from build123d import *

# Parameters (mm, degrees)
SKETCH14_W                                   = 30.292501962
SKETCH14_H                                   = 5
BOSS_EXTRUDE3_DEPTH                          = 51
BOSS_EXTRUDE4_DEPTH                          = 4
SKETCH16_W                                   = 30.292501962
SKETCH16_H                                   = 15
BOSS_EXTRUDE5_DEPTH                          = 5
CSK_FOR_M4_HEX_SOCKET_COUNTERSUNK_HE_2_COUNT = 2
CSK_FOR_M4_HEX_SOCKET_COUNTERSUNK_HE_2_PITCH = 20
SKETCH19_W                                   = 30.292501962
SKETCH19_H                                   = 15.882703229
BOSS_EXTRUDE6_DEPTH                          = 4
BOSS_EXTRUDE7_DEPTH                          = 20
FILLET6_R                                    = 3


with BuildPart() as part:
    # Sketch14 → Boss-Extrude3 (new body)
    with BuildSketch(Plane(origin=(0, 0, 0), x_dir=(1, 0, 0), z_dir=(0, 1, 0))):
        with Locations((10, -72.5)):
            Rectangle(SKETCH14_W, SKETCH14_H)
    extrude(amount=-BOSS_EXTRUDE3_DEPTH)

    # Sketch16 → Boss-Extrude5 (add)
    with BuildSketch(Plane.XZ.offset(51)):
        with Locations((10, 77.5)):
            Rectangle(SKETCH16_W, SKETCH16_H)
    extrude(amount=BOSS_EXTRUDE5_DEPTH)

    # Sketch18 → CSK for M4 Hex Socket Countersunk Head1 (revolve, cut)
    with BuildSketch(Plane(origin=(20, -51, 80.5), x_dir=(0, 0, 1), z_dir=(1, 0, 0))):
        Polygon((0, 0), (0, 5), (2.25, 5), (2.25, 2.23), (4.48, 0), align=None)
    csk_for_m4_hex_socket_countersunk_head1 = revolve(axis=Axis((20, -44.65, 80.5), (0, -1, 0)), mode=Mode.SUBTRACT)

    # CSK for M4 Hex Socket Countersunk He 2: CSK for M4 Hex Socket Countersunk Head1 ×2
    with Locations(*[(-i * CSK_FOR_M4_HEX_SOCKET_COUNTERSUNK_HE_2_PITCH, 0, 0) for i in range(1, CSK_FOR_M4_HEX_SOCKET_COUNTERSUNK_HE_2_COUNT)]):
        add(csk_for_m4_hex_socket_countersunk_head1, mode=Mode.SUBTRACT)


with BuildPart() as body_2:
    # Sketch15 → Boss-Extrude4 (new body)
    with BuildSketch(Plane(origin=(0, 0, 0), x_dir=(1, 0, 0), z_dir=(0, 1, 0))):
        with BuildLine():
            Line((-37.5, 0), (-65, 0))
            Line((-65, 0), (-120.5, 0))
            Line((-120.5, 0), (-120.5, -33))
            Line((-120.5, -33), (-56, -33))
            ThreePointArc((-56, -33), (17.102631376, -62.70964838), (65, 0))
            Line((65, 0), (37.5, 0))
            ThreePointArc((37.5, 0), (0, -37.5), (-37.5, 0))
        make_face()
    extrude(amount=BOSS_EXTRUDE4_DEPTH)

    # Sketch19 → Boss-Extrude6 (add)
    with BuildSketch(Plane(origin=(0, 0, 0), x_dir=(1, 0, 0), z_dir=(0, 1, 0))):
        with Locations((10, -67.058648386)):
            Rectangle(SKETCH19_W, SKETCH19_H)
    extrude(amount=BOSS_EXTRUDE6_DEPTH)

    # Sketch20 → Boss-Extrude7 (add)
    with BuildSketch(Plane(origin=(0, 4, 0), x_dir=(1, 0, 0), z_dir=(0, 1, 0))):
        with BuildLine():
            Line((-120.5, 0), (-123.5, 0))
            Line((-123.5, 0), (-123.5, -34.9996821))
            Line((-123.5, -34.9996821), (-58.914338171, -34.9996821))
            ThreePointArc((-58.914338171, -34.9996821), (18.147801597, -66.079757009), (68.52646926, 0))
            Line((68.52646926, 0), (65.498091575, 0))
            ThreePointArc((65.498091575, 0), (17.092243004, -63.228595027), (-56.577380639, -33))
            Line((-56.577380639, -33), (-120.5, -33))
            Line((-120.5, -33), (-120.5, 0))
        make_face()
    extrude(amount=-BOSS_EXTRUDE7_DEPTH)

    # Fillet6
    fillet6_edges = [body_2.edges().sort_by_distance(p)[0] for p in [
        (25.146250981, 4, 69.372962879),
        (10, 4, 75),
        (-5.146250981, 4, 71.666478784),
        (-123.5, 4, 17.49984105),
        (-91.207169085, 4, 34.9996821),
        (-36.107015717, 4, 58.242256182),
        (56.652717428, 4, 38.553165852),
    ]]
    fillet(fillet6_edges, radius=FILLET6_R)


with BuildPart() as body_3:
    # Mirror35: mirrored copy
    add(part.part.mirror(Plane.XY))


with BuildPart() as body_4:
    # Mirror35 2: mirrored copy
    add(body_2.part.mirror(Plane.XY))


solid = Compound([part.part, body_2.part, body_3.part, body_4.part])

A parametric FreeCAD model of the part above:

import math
import FreeCAD as App
import Part
import Sketcher

V = App.Vector
Q = App.Units.Quantity


def edges_at(feature, points):
    """Names of the edges that pass closest to the given points."""
    edges = feature.Shape.Edges
    near = lambda p: min(range(len(edges)), key=lambda i: edges[i].distToShape(Part.Vertex(*p))[0])
    return sorted({f"Edge{near(p) + 1}" for p in points})

doc = App.newDocument("Part")
params = doc.addObject("Spreadsheet::Sheet", "Params")
for row, (alias, value) in enumerate([
    ("sketch1_height", "5 mm"),
    ("pad1_length", "51 mm"),
    ("sketch2_height", "15 mm"),
    ("pad2_length", "5 mm"),
    ("sketch3_width", "5 mm"),
    ("sketch3_width2", "2.77 mm"),
    ("sketch3_height", "4.48 mm"),
    ("groove_angle", "360 deg"),
    ("linearpattern_pitch", "20 mm"),
    ("sketch4_radius", "65 mm"),
    ("sketch4_radius2", "37.5 mm"),
    ("sketch4_width", "83 mm"),
    ("sketch4_height", "33 mm"),
    ("pad3_length", "4 mm"),
    ("pad4_length", "4 mm"),
    ("sketch6_width", "3 mm"),
    ("sketch6_height", "33 mm"),
    ("pad5_length", "20 mm"),
    ("fillet_radius", "3 mm"),
], start=1):
    params.set(f"A{row}", alias)
    params.set(f"B{row}", "=" + value)
    params.setAlias(f"B{row}", alias)

body = doc.addObject("PartDesign::Body", "Body")

sketch1 = doc.addObject("Sketcher::SketchObject", "Sketch")
body.addObject(sketch1)
sketch1.AttachmentSupport = (doc.XZ_Plane, [""])
sketch1.MapMode = "FlatFace"
sketch1.addGeometry([
    Part.LineSegment(V(-5, 70, 0), V(-5, 75, 0)),
    Part.LineSegment(V(-5, 75, 0), V(25, 75, 0)),
    Part.LineSegment(V(25, 75, 0), V(25, 70, 0)),
    Part.LineSegment(V(25, 70, 0), V(-5, 70, 0)),
], False)
sketch1.addConstraint([
    Sketcher.Constraint("Coincident", 0, 2, 1, 1),
    Sketcher.Constraint("Coincident", 1, 2, 2, 1),
    Sketcher.Constraint("Coincident", 2, 2, 3, 1),
    Sketcher.Constraint("Coincident", 3, 2, 0, 1),
    Sketcher.Constraint("Vertical", 0),
    Sketcher.Constraint("Horizontal", 1),
    Sketcher.Constraint("Vertical", 2),
    Sketcher.Constraint("Horizontal", 3),
    Sketcher.Constraint("DistanceY", 0, 1, 0, 2, Q("5 mm")),
    Sketcher.Constraint("DistanceY", -1, 1, 0, 2, Q("75 mm")),
    Sketcher.Constraint("DistanceX", 1, 1, 1, 2, Q("30.292502 mm")),
    Sketcher.Constraint("DistanceX", 0, 2, -1, 1, Q("5.146251 mm")),
])
sketch1.setExpression("Constraints[8]", "Params.sketch1_height")
pad1 = doc.addObject("PartDesign::Pad", "Pad")
body.addObject(pad1)
pad1.Profile = sketch1
pad1.setExpression("Length", "Params.pad1_length")

sketch2 = doc.addObject("Sketcher::SketchObject", "Sketch001")
body.addObject(sketch2)
sketch2.AttachmentSupport = (doc.XZ_Plane, [""])
sketch2.MapMode = "FlatFace"
sketch2.AttachmentOffset = App.Placement(V(0, 0, 51), App.Rotation())
sketch2.addGeometry([
    Part.LineSegment(V(-5, 85, 0), V(-5, 70, 0)),
    Part.LineSegment(V(-5, 70, 0), V(25, 70, 0)),
    Part.LineSegment(V(25, 70, 0), V(25, 85, 0)),
    Part.LineSegment(V(25, 85, 0), V(-5, 85, 0)),
], False)
sketch2.addConstraint([
    Sketcher.Constraint("Coincident", 0, 2, 1, 1),
    Sketcher.Constraint("Coincident", 1, 2, 2, 1),
    Sketcher.Constraint("Coincident", 2, 2, 3, 1),
    Sketcher.Constraint("Coincident", 3, 2, 0, 1),
    Sketcher.Constraint("Vertical", 0),
    Sketcher.Constraint("Horizontal", 1),
    Sketcher.Constraint("Vertical", 2),
    Sketcher.Constraint("Horizontal", 3),
    Sketcher.Constraint("DistanceY", 0, 2, 0, 1, Q("15 mm")),
    Sketcher.Constraint("DistanceY", -1, 1, 0, 2, Q("70 mm")),
    Sketcher.Constraint("DistanceX", 1, 1, 1, 2, Q("30.292502 mm")),
    Sketcher.Constraint("DistanceX", 0, 2, -1, 1, Q("5.146251 mm")),
])
sketch2.setExpression("Constraints[8]", "Params.sketch2_height")
pad2 = doc.addObject("PartDesign::Pad", "Pad001")
body.addObject(pad2)
pad2.Profile = sketch2
pad2.setExpression("Length", "Params.pad2_length")

sketch3 = doc.addObject("Sketcher::SketchObject", "Sketch002")
body.addObject(sketch3)
sketch3.AttachmentSupport = (doc.YZ_Plane, [""])
sketch3.MapMode = "FlatFace"
sketch3.AttachmentOffset = App.Placement(V(0, 0, 20), App.Rotation())
sketch3.addGeometry([
    Part.LineSegment(V(-56, 80.5, 0), V(-51, 80.5, 0)),
    Part.LineSegment(V(-51, 80.5, 0), V(-51, 85, 0)),
    Part.LineSegment(V(-51, 85, 0), V(-53.2, 82.8, 0)),
    Part.LineSegment(V(-53.2, 82.8, 0), V(-56, 82.8, 0)),
    Part.LineSegment(V(-56, 82.8, 0), V(-56, 80.5, 0)),
], False)
sketch3.addGeometry(Part.LineSegment(V(-51, 80.5, 0), V(-56, 80.5, 0)), True)
sketch3.addConstraint([
    Sketcher.Constraint("Coincident", 0, 2, 1, 1),
    Sketcher.Constraint("Coincident", 1, 2, 2, 1),
    Sketcher.Constraint("Coincident", 2, 2, 3, 1),
    Sketcher.Constraint("Coincident", 3, 2, 4, 1),
    Sketcher.Constraint("Coincident", 4, 2, 0, 1),
    Sketcher.Constraint("Horizontal", 0),
    Sketcher.Constraint("Vertical", 1),
    Sketcher.Constraint("Horizontal", 3),
    Sketcher.Constraint("Vertical", 4),
    Sketcher.Constraint("Horizontal", 5),
    Sketcher.Constraint("Coincident", 5, 1, 0, 2),
    Sketcher.Constraint("Vertical", 3, 2, 5, 2),
    Sketcher.Constraint("DistanceX", 0, 1, 0, 2, Q("5 mm")),
    Sketcher.Constraint("Angle", 2, Q("-135 deg")),
    Sketcher.Constraint("DistanceX", 0, 2, -1, 1, Q("51 mm")),
    Sketcher.Constraint("DistanceX", 3, 2, 3, 1, Q("2.77 mm")),
    Sketcher.Constraint("DistanceY", 1, 1, 1, 2, Q("4.48 mm")),
    Sketcher.Constraint("DistanceY", -1, 1, 0, 2, Q("80.5 mm")),
])
sketch3.setExpression("Constraints[12]", "Params.sketch3_width")
sketch3.setExpression("Constraints[15]", "Params.sketch3_width2")
sketch3.setExpression("Constraints[16]", "Params.sketch3_height")
groove = doc.addObject("PartDesign::Groove", "Groove")
body.addObject(groove)
groove.Profile = sketch3
groove.ReferenceAxis = (sketch3, ["Axis0"])
groove.setExpression("Angle", "Params.groove_angle")
doc.recompute()

linearpattern = doc.addObject("PartDesign::LinearPattern", "LinearPattern")
body.addObject(linearpattern)
linearpattern.Originals = [groove]
linearpattern.Direction = (doc.X_Axis, [""])
linearpattern.Mode = "offset"
linearpattern.setExpression("Offset", "Params.linearpattern_pitch")
linearpattern.Occurrences = 2
linearpattern.Reversed = True
body.Tip = linearpattern
body2 = doc.addObject("PartDesign::Body", "Body001")

sketch4 = doc.addObject("Sketcher::SketchObject", "Sketch003")
body2.addObject(sketch4)
sketch4.AttachmentSupport = (doc.getObject("XZ_Plane001"), [""])
sketch4.MapMode = "FlatFace"
sketch4.addGeometry([
    Part.LineSegment(V(-38, 0, 0), V(-120, 0, 0)),
    Part.LineSegment(V(-120, 0, 0), V(-120, 33, 0)),
    Part.LineSegment(V(-120, 33, 0), V(-56, 33, 0)),
    Part.ArcOfCircle(Part.Circle(V(0, 0, 0), V(0, 0, 1), 65), math.radians(0), math.radians(149)),
    Part.LineSegment(V(65, 0, 0), V(38, 0, 0)),
    Part.ArcOfCircle(Part.Circle(V(0, 0, 0), V(0, 0, 1), 38), math.radians(0), math.radians(180)),
], False)
sketch4.addConstraint([
    Sketcher.Constraint("Coincident", 0, 2, 1, 1),
    Sketcher.Constraint("Coincident", 1, 2, 2, 1),
    Sketcher.Constraint("Coincident", 2, 2, 3, 2),
    Sketcher.Constraint("Coincident", 3, 1, 4, 1),
    Sketcher.Constraint("Coincident", 4, 2, 5, 1),
    Sketcher.Constraint("Coincident", 5, 2, 0, 1),
    Sketcher.Constraint("Horizontal", 0),
    Sketcher.Constraint("Vertical", 1),
    Sketcher.Constraint("Horizontal", 2),
    Sketcher.Constraint("Horizontal", 4),
    Sketcher.Constraint("Coincident", 3, 3, -1, 1),
    Sketcher.Constraint("Coincident", 5, 3, -1, 1),
    Sketcher.Constraint("PointOnObject", 0, 2, -1),
    Sketcher.Constraint("PointOnObject", 3, 1, -1),
    Sketcher.Constraint("Radius", 3, Q("65 mm")),
    Sketcher.Constraint("Radius", 5, Q("37.5 mm")),
    Sketcher.Constraint("DistanceX", 0, 2, 0, 1, Q("83 mm")),
    Sketcher.Constraint("DistanceY", 1, 1, 1, 2, Q("33 mm")),
])
sketch4.setExpression("Constraints[14]", "Params.sketch4_radius")
sketch4.setExpression("Constraints[15]", "Params.sketch4_radius2")
sketch4.setExpression("Constraints[16]", "Params.sketch4_width")
sketch4.setExpression("Constraints[17]", "Params.sketch4_height")
pad3 = doc.addObject("PartDesign::Pad", "Pad002")
body2.addObject(pad3)
pad3.Profile = sketch4
pad3.setExpression("Length", "Params.pad3_length")
pad3.Reversed = True

sketch5 = doc.addObject("Sketcher::SketchObject", "Sketch004")
body2.addObject(sketch5)
sketch5.AttachmentSupport = (doc.getObject("XZ_Plane001"), [""])
sketch5.MapMode = "FlatFace"
sketch5.addGeometry([
    Part.LineSegment(V(-5, 59, 0), V(-5, 75, 0)),
    Part.LineSegment(V(-5, 75, 0), V(25, 75, 0)),
    Part.LineSegment(V(25, 75, 0), V(25, 59, 0)),
    Part.LineSegment(V(25, 59, 0), V(-5, 59, 0)),
], False)
sketch5.addConstraint([
    Sketcher.Constraint("Coincident", 0, 2, 1, 1),
    Sketcher.Constraint("Coincident", 1, 2, 2, 1),
    Sketcher.Constraint("Coincident", 2, 2, 3, 1),
    Sketcher.Constraint("Coincident", 3, 2, 0, 1),
    Sketcher.Constraint("Vertical", 0),
    Sketcher.Constraint("Horizontal", 1),
    Sketcher.Constraint("Vertical", 2),
    Sketcher.Constraint("Horizontal", 3),
    Sketcher.Constraint("DistanceY", -1, 1, 0, 2, Q("75 mm")),
    Sketcher.Constraint("DistanceX", 1, 1, 1, 2, Q("30.292502 mm")),
    Sketcher.Constraint("DistanceY", 0, 1, 0, 2, Q("15.882703 mm")),
    Sketcher.Constraint("DistanceX", 0, 2, -1, 1, Q("5.146251 mm")),
])
pad4 = doc.addObject("PartDesign::Pad", "Pad003")
body2.addObject(pad4)
pad4.Profile = sketch5
pad4.setExpression("Length", "Params.pad4_length")
pad4.Reversed = True

sketch6 = doc.addObject("Sketcher::SketchObject", "Sketch005")
body2.addObject(sketch6)
sketch6.AttachmentSupport = (doc.getObject("XZ_Plane001"), [""])
sketch6.MapMode = "FlatFace"
sketch6.AttachmentOffset = App.Placement(V(0, 0, -4), App.Rotation())
sketch6.addGeometry([
    Part.LineSegment(V(-120.5, 0, 0), V(-123.5, 0, 0)),
    Part.LineSegment(V(-123.5, 0, 0), V(-123.5, 35, 0)),
    Part.LineSegment(V(-123.5, 35, 0), V(-58.9, 35, 0)),
    Part.ArcOfCircle(Part.Circle(V(0, 0, 0), V(0, 0, 1), 68.5), math.radians(0), math.radians(149)),
    Part.LineSegment(V(68.5, 0, 0), V(65.5, 0, 0)),
    Part.ArcOfCircle(Part.Circle(V(0, 0, 0), V(0, 0, 1), 65.5), math.radians(0), math.radians(150)),
    Part.LineSegment(V(-56.6, 33, 0), V(-120.5, 33, 0)),
    Part.LineSegment(V(-120.5, 33, 0), V(-120.5, 0, 0)),
], False)
sketch6.addConstraint([
    Sketcher.Constraint("Coincident", 0, 2, 1, 1),
    Sketcher.Constraint("Coincident", 1, 2, 2, 1),
    Sketcher.Constraint("Coincident", 2, 2, 3, 2),
    Sketcher.Constraint("Coincident", 3, 1, 4, 1),
    Sketcher.Constraint("Coincident", 4, 2, 5, 1),
    Sketcher.Constraint("Coincident", 5, 2, 6, 1),
    Sketcher.Constraint("Coincident", 6, 2, 7, 1),
    Sketcher.Constraint("Coincident", 7, 2, 0, 1),
    Sketcher.Constraint("Horizontal", 0),
    Sketcher.Constraint("Vertical", 1),
    Sketcher.Constraint("Horizontal", 2),
    Sketcher.Constraint("Horizontal", 4),
    Sketcher.Constraint("Horizontal", 6),
    Sketcher.Constraint("Vertical", 7),
    Sketcher.Constraint("Coincident", 3, 3, -1, 1),
    Sketcher.Constraint("Coincident", 5, 3, -1, 1),
    Sketcher.Constraint("PointOnObject", 0, 2, -1),
    Sketcher.Constraint("PointOnObject", 3, 1, -1),
    Sketcher.Constraint("DistanceX", 0, 2, 0, 1, Q("3 mm")),
    Sketcher.Constraint("DistanceY", 7, 2, 7, 1, Q("33 mm")),
    Sketcher.Constraint("DistanceX", 0, 2, -1, 1, Q("123.5 mm")),
    Sketcher.Constraint("Radius", 3, Q("68.526469 mm")),
    Sketcher.Constraint("Radius", 5, Q("65.498092 mm")),
    Sketcher.Constraint("DistanceX", 2, 1, 2, 2, Q("64.585662 mm")),
])
sketch6.setExpression("Constraints[18]", "Params.sketch6_width")
sketch6.setExpression("Constraints[19]", "Params.sketch6_height")
pad5 = doc.addObject("PartDesign::Pad", "Pad004")
body2.addObject(pad5)
pad5.Profile = sketch6
pad5.setExpression("Length", "Params.pad5_length")
doc.recompute()

fillet = doc.addObject("PartDesign::Fillet", "Fillet")
body2.addObject(fillet)
fillet.Base = (pad5, edges_at(pad5, [
    (25.146, 4, 69.373),
    (10, 4, 75),
    (-5.146, 4, 71.666),
    (-123.5, 4, 17.5),
    (-91.207, 4, 35),
    (-36.107, 4, 58.242),
    (56.653, 4, 38.553),
]))
fillet.setExpression("Radius", "Params.fillet_radius")
body3 = doc.addObject("PartDesign::Body", "Body002")
doc.recompute()

mirroring = doc.addObject("Part::Mirroring", "Mirroring")
mirroring.Source = body
mirroring.Base = V(0, 0, 0)
mirroring.Normal = V(0, 0, 1)
body3.BaseFeature = mirroring
doc.recompute()
body4 = doc.addObject("PartDesign::Body", "Body003")
doc.recompute()

mirroring2 = doc.addObject("Part::Mirroring", "Mirroring001")
mirroring2.Source = body2
mirroring2.Base = V(0, 0, 0)
mirroring2.Normal = V(0, 0, 1)
body4.BaseFeature = mirroring2
doc.recompute()
mirroring.Visibility = False
mirroring2.Visibility = False

doc.recompute()
